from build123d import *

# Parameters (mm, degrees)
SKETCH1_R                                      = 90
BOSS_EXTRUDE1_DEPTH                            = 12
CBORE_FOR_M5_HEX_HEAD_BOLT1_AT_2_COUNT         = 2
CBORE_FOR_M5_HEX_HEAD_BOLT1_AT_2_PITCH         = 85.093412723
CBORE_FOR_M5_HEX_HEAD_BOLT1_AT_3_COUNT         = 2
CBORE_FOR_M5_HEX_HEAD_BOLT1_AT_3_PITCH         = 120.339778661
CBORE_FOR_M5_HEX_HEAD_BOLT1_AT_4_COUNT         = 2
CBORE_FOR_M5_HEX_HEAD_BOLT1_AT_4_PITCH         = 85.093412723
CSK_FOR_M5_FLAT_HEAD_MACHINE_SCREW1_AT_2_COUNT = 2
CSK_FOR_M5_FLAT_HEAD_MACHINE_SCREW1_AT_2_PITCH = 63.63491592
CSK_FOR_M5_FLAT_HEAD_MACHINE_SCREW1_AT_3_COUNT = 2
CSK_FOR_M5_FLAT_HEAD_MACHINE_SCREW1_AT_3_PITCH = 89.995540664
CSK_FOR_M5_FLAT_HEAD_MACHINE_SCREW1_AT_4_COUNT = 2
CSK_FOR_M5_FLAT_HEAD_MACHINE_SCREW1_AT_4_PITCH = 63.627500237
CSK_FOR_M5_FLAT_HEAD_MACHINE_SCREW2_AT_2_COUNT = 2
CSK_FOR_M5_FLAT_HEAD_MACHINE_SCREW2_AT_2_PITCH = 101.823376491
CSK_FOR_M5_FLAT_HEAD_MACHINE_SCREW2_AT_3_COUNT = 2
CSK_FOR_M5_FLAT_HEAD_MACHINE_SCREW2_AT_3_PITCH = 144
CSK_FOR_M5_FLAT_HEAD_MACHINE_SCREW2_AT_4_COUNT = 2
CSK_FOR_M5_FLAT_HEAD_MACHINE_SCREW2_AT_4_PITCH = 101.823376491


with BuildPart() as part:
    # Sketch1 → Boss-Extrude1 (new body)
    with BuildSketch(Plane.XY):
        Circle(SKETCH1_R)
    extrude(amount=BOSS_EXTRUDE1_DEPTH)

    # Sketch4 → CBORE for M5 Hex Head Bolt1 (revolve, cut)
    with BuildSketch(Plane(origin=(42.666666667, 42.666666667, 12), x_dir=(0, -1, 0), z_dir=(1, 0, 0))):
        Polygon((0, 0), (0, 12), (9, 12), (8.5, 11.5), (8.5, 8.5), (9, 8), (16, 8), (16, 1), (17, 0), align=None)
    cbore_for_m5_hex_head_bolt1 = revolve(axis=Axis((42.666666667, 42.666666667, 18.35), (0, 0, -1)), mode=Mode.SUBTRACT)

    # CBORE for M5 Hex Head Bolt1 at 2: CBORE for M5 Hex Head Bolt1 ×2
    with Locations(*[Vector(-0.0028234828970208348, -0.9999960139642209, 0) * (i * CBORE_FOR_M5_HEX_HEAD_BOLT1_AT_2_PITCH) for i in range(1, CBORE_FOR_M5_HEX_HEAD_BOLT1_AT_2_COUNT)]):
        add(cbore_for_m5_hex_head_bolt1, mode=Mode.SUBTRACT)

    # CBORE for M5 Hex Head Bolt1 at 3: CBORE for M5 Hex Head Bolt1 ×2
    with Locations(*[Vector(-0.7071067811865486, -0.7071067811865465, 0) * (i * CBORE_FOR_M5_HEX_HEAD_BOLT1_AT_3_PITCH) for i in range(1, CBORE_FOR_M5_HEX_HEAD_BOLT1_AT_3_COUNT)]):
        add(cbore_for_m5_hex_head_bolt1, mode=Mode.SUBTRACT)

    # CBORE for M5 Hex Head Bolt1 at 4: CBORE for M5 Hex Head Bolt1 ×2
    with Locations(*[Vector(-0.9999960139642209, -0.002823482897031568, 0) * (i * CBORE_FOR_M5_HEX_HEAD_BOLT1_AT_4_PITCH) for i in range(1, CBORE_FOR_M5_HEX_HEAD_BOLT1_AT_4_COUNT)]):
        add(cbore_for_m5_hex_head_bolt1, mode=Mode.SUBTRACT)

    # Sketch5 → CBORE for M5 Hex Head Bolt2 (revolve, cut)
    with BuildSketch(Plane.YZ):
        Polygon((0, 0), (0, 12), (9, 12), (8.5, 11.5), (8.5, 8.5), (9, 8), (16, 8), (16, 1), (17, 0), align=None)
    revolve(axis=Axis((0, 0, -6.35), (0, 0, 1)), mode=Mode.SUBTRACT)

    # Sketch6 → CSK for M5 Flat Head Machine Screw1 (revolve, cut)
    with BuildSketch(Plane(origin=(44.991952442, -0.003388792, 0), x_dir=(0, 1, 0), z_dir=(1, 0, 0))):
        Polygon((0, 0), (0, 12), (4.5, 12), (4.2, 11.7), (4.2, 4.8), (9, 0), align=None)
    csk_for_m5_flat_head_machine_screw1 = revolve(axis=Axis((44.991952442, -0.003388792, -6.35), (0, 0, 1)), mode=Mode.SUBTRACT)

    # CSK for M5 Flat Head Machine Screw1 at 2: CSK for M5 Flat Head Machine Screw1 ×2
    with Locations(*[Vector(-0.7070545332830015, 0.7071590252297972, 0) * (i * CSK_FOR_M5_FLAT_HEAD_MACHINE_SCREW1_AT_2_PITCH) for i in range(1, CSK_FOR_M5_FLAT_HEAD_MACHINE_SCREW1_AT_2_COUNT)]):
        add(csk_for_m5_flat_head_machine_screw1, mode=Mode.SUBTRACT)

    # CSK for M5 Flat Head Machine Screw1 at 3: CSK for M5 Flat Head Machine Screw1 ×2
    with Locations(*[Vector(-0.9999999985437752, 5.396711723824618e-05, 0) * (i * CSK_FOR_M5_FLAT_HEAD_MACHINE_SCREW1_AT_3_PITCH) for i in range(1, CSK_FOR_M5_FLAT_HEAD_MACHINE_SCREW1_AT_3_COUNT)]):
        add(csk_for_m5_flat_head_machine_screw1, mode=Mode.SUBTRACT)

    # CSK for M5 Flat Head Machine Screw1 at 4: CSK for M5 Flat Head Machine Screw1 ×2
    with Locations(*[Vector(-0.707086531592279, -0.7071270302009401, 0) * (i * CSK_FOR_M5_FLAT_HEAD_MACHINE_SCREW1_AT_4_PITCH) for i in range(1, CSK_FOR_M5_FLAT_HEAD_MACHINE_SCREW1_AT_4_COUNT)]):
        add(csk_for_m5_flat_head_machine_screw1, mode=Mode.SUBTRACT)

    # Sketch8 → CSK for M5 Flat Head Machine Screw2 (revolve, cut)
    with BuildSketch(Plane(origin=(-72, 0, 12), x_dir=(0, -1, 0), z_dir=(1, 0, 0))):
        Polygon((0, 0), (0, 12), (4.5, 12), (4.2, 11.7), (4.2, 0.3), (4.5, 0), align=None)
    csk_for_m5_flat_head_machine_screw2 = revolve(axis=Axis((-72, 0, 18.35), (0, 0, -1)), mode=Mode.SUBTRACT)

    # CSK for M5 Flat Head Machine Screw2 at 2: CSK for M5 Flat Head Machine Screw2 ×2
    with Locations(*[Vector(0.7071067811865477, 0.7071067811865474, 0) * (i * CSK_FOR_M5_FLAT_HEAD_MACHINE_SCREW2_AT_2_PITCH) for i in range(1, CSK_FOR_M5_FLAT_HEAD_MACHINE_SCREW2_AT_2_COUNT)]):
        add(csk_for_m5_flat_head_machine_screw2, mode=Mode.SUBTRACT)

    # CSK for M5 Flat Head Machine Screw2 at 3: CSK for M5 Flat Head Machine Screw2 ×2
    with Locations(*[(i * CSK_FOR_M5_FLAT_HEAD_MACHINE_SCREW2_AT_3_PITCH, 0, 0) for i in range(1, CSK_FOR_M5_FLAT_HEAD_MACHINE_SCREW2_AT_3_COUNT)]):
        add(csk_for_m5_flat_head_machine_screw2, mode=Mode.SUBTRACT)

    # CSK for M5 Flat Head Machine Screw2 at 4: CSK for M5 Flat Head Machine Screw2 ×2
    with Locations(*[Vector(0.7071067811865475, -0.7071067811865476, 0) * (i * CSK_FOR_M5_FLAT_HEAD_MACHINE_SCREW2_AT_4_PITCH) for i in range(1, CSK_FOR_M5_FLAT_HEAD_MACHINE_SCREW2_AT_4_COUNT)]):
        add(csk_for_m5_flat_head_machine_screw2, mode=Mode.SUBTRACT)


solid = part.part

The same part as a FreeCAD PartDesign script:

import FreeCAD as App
import Part
import Sketcher

V = App.Vector
Q = App.Units.Quantity

doc = App.newDocument("Part")
params = doc.addObject("Spreadsheet::Sheet", "Params")
for row, (alias, value) in enumerate([
    ("sketch1_diameter", "180 mm"),
    ("pad1_length", "12 mm"),
    ("sketch2_width", "17 mm"),
    ("sketch2_width2", "7 mm"),
    ("sketch2_width3", "9 mm"),
    ("sketch2_height", "12 mm"),
    ("sketch2_height2", "3 mm"),
    ("groove_angle", "360 deg"),
    ("linearpattern_pitch", "85.093413 mm"),
    ("linearpattern2_pitch", "120.339779 mm"),
    ("linearpattern3_pitch", "85.093413 mm"),
    ("sketch3_width", "17 mm"),
    ("sketch3_width2", "7 mm"),
    ("sketch3_width3", "9 mm"),
    ("sketch3_height", "12 mm"),
    ("sketch3_height2", "3 mm"),
    ("groove2_angle", "360 deg"),
    ("sketch4_width", "9 mm"),
    ("sketch4_height", "12 mm"),
    ("sketch4_width2", "4.5 mm"),
    ("sketch4_height2", "6.9 mm"),
    ("groove3_angle", "360 deg"),
    ("linearpattern4_pitch", "63.634916 mm"),
    ("linearpattern5_pitch", "89.995541 mm"),
    ("linearpattern6_pitch", "63.6275 mm"),
    ("sketch5_height", "12 mm"),
    ("sketch5_width", "4.5 mm"),
    ("sketch5_height2", "11.4 mm"),
    ("groove4_angle", "360 deg"),
    ("linearpattern7_pitch", "101.823376 mm"),
    ("linearpattern8_pitch", "144 mm"),
    ("linearpattern9_pitch", "101.823376 mm"),
], start=1):
    params.set(f"A{row}", alias)
    params.set(f"B{row}", "=" + value)
    params.setAlias(f"B{row}", alias)

body = doc.addObject("PartDesign::Body", "Body")

# Sketch on XY plane
sketch1 = body.newObject("Sketcher::SketchObject", "Sketch")
sketch1.AttachmentSupport = (doc.getObject("XY_Plane"), [""])
sketch1.MapMode = "FlatFace"
sketch1.addGeometry(Part.Circle(V(0, 0, 0), V(0, 0, 1), 90), False)
sketch1.addConstraint([
    Sketcher.Constraint("Coincident", 0, 3, -1, 1),
    Sketcher.Constraint("Diameter", 0, 180.0),
])
sketch1.setExpression("Constraints[1]", "Params.sketch1_diameter")
pad1 = body.newObject("PartDesign::Pad", "Pad")
pad1.Profile = sketch1
pad1.setExpression("Length", "Params.pad1_length")

# Sketch on YZ plane
sketch2 = body.newObject("Sketcher::SketchObject", "Sketch001")
sketch2.AttachmentSupport = (doc.getObject("YZ_Plane"), [""])
sketch2.MapMode = "FlatFace"
sketch2.AttachmentOffset = App.Placement(V(0, 0, 42.666667), App.Rotation())
sketch2.addGeometry([
    Part.LineSegment(V(42.7, 0, 0), V(42.7, 12, 0)),  # 0
    Part.LineSegment(V(42.7, 12, 0), V(25.7, 12, 0)),  # 1
    Part.LineSegment(V(25.7, 12, 0), V(26.7, 11, 0)),  # 2
    Part.LineSegment(V(26.7, 11, 0), V(26.7, 4, 0)),  # 3
    Part.LineSegment(V(26.7, 4, 0), V(33.7, 4, 0)),  # 4
    Part.LineSegment(V(33.7, 4, 0), V(34.2, 3.5, 0)),  # 5
    Part.LineSegment(V(34.2, 3.5, 0), V(34.2, 0.5, 0)),  # 6
    Part.LineSegment(V(34.2, 0.5, 0), V(33.7, 0, 0)),  # 7
    Part.LineSegment(V(33.7, 0, 0), V(42.7, 0, 0)),  # 8
], False)
sketch2.addGeometry(Part.LineSegment(V(42.7, 12, 0), V(42.7, 0, 0)), True)  # axis
sketch2.addConstraint([
    Sketcher.Constraint("Coincident", 0, 2, 1, 1),
    Sketcher.Constraint("Coincident", 1, 2, 2, 1),
    Sketcher.Constraint("Coincident", 2, 2, 3, 1),
    Sketcher.Constraint("Coincident", 3, 2, 4, 1),
    Sketcher.Constraint("Coincident", 4, 2, 5, 1),
    Sketcher.Constraint("Coincident", 5, 2, 6, 1),
    Sketcher.Constraint("Coincident", 6, 2, 7, 1),
    Sketcher.Constraint("Coincident", 7, 2, 8, 1),
    Sketcher.Constraint("Coincident", 8, 2, 0, 1),
    Sketcher.Constraint("Vertical", 0),
    Sketcher.Constraint("Horizontal", 1),
    Sketcher.Constraint("Vertical", 3),
    Sketcher.Constraint("Horizontal", 4),
    Sketcher.Constraint("Vertical", 6),
    Sketcher.Constraint("Horizontal", 8),
    Sketcher.Constraint("Vertical", 9),
    Sketcher.Constraint("Coincident", 9, 1, 0, 2),
    Sketcher.Constraint("PointOnObject", 7, 2, -1),
    Sketcher.Constraint("PointOnObject", 9, 2, -1),
    Sketcher.Constraint("Parallel", 2, 5),
    Sketcher.Constraint("Perpendicular", 5, 7),
    Sketcher.Constraint("Vertical", 4, 2, 7, 2),
    Sketcher.Constraint("Equal", 4, 3),
    Sketcher.Constraint("Equal", 5, 7),
    Sketcher.Constraint("DistanceX", 1, 2, 1, 1, 17.0),
    Sketcher.Constraint("DistanceX", 4, 1, 4, 2, 7.0),
    Sketcher.Constraint("DistanceX", 8, 1, 8, 2, 9.0),
    Sketcher.Constraint("DistanceY", 0, 1, 0, 2, 12.0),
    Sketcher.Constraint("DistanceY", 6, 2, 6, 1, 3.0),
    Sketcher.Constraint("DistanceX", -1, 1, 0, 2, 42.666667),
])
sketch2.setExpression("Constraints[24]", "Params.sketch2_width")
sketch2.setExpression("Constraints[25]", "Params.sketch2_width2")
sketch2.setExpression("Constraints[26]", "Params.sketch2_width3")
sketch2.setExpression("Constraints[27]", "Params.sketch2_height")
sketch2.setExpression("Constraints[28]", "Params.sketch2_height2")
groove = body.newObject("PartDesign::Groove", "Groove")
groove.Profile = sketch2
groove.ReferenceAxis = (sketch2, ["Axis0"])
groove.setExpression("Angle", "Params.groove_angle")
doc.recompute()

datumline = body.newObject("PartDesign::Line", "DatumLine")
datumline.Placement = App.Placement(V(0, 0, 0), App.Rotation(V(0, 0, 1), V(-0.002823483, -0.999996014, 0)))
linearpattern = body.newObject("PartDesign::LinearPattern", "LinearPattern")
linearpattern.Originals = [groove]
linearpattern.Direction = (datumline, [""])
linearpattern.Mode = "offset"
linearpattern.setExpression("Offset", "Params.linearpattern_pitch")
linearpattern.Occurrences = 2
body.Tip = linearpattern
doc.recompute()

datumline2 = body.newObject("PartDesign::Line", "DatumLine001")
datumline2.Placement = App.Placement(V(0, 0, 0), App.Rotation(V(0, 0, 1), V(-0.707106781, -0.707106781, 0)))
linearpattern2 = body.newObject("PartDesign::LinearPattern", "LinearPattern001")
linearpattern2.Originals = [groove]
linearpattern2.Direction = (datumline2, [""])
linearpattern2.Mode = "offset"
linearpattern2.setExpression("Offset", "Params.linearpattern2_pitch")
linearpattern2.Occurrences = 2
body.Tip = linearpattern2
doc.recompute()

datumline3 = body.newObject("PartDesign::Line", "DatumLine002")
datumline3.Placement = App.Placement(V(0, 0, 0), App.Rotation(V(0, 0, 1), V(-0.999996014, -0.002823483, 0)))
linearpattern3 = body.newObject("PartDesign::LinearPattern", "LinearPattern002")
linearpattern3.Originals = [groove]
linearpattern3.Direction = (datumline3, [""])
linearpattern3.Mode = "offset"
linearpattern3.setExpression("Offset", "Params.linearpattern3_pitch")
linearpattern3.Occurrences = 2
body.Tip = linearpattern3

# Sketch on YZ plane
sketch3 = body.newObject("Sketcher::SketchObject", "Sketch002")
sketch3.AttachmentSupport = (doc.getObject("YZ_Plane"), [""])
sketch3.MapMode = "FlatFace"
sketch3.addGeometry([
    Part.LineSegment(V(0, 12, 0), V(0, 0, 0)),  # 0
    Part.LineSegment(V(0, 0, 0), V(17, 0, 0)),  # 1
    Part.LineSegment(V(17, 0, 0), V(16, 1, 0)),  # 2
    Part.LineSegment(V(16, 1, 0), V(16, 8, 0)),  # 3
    Part.LineSegment(V(16, 8, 0), V(9, 8, 0)),  # 4
    Part.LineSegment(V(9, 8, 0), V(8.5, 8.5, 0)),  # 5
    Part.LineSegment(V(8.5, 8.5, 0), V(8.5, 11.5, 0)),  # 6
    Part.LineSegment(V(8.5, 11.5, 0), V(9, 12, 0)),  # 7
    Part.LineSegment(V(9, 12, 0), V(0, 12, 0)),  # 8
], False)
sketch3.addConstraint([
    Sketcher.Constraint("Coincident", 0, 2, 1, 1),
    Sketcher.Constraint("Coincident", 1, 2, 2, 1),
    Sketcher.Constraint("Coincident", 2, 2, 3, 1),
    Sketcher.Constraint("Coincident", 3, 2, 4, 1),
    Sketcher.Constraint("Coincident", 4, 2, 5, 1),
    Sketcher.Constraint("Coincident", 5, 2, 6, 1),
    Sketcher.Constraint("Coincident", 6, 2, 7, 1),
    Sketcher.Constraint("Coincident", 7, 2, 8, 1),
    Sketcher.Constraint("Coincident", 8, 2, 0, 1),
    Sketcher.Constraint("Vertical", 0),
    Sketcher.Constraint("Horizontal", 1),
    Sketcher.Constraint("Vertical", 3),
    Sketcher.Constraint("Horizontal", 4),
    Sketcher.Constraint("Vertical", 6),
    Sketcher.Constraint("Horizontal", 8),
    Sketcher.Constraint("Coincident", 0, 2, -1, 1),
    Sketcher.Constraint("Parallel", 2, 5),
    Sketcher.Constraint("Perpendicular", 5, 7),
    Sketcher.Constraint("Vertical", 4, 2, 7, 2),
    Sketcher.Constraint("Equal", 4, 3),
    Sketcher.Constraint("Equal", 5, 7),
    Sketcher.Constraint("DistanceX", 1, 1, 1, 2, 17.0),
    Sketcher.Constraint("DistanceX", 4, 2, 4, 1, 7.0),
    Sketcher.Constraint("DistanceX", 8, 2, 8, 1, 9.0),
    Sketcher.Constraint("DistanceY", 0, 2, 0, 1, 12.0),
    Sketcher.Constraint("DistanceY", 6, 1, 6, 2, 3.0),
])
sketch3.setExpression("Constraints[21]", "Params.sketch3_width")
sketch3.setExpression("Constraints[22]", "Params.sketch3_width2")
sketch3.setExpression("Constraints[23]", "Params.sketch3_width3")
sketch3.setExpression("Constraints[24]", "Params.sketch3_height")
sketch3.setExpression("Constraints[25]", "Params.sketch3_height2")
groove2 = body.newObject("PartDesign::Groove", "Groove001")
groove2.Profile = sketch3
groove2.ReferenceAxis = (sketch3, ["V_Axis"])
groove2.setExpression("Angle", "Params.groove2_angle")

# Sketch on YZ plane
sketch4 = body.newObject("Sketcher::SketchObject", "Sketch003")
sketch4.AttachmentSupport = (doc.getObject("YZ_Plane"), [""])
sketch4.MapMode = "FlatFace"
sketch4.AttachmentOffset = App.Placement(V(0, 0, 44.991952), App.Rotation())
sketch4.addGeometry([
    Part.LineSegment(V(0, 12, 0), V(0, 0, 0)),  # 0
    Part.LineSegment(V(0, 0, 0), V(9, 0, 0)),  # 1
    Part.LineSegment(V(9, 0, 0), V(4.2, 4.8, 0)),  # 2
    Part.LineSegment(V(4.2, 4.8, 0), V(4.2, 11.7, 0)),  # 3
    Part.LineSegment(V(4.2, 11.7, 0), V(4.5, 12, 0)),  # 4
    Part.LineSegment(V(4.5, 12, 0), V(0, 12, 0)),  # 5
], False)
sketch4.addGeometry(Part.LineSegment(V(0, 0, 0), V(0, 12, 0)), True)  # axis
sketch4.addConstraint([
    Sketcher.Constraint("Coincident", 0, 2, 1, 1),
    Sketcher.Constraint("Coincident", 1, 2, 2, 1),
    Sketcher.Constraint("Coincident", 2, 2, 3, 1),
    Sketcher.Constraint("Coincident", 3, 2, 4, 1),
    Sketcher.Constraint("Coincident", 4, 2, 5, 1),
    Sketcher.Constraint("Coincident", 5, 2, 0, 1),
    Sketcher.Constraint("Vertical", 0),
    Sketcher.Constraint("Horizontal", 1),
    Sketcher.Constraint("Vertical", 3),
    Sketcher.Constraint("Horizontal", 5),
    Sketcher.Constraint("Vertical", 6),
    Sketcher.Constraint("Coincident", 6, 1, 0, 2),
    Sketcher.Constraint("PointOnObject", 0, 2, -1),
    Sketcher.Constraint("Perpendicular", 2, 4),
    Sketcher.Constraint("Horizontal", 4, 2, 6, 2),
    Sketcher.Constraint("DistanceX", 1, 1, 1, 2, 9.0),
    Sketcher.Constraint("DistanceY", 0, 2, 0, 1, 12.0),
    Sketcher.Constraint("Angle", 2, Q("135 deg")),
    Sketcher.Constraint("DistanceX", 5, 2, 5, 1, 4.5),
    Sketcher.Constraint("DistanceY", 3, 1, 3, 2, 6.9),
    Sketcher.Constraint("DistanceX", 0, 2, -1, 1, 0.003389),
])
sketch4.setExpression("Constraints[15]", "Params.sketch4_width")
sketch4.setExpression("Constraints[16]", "Params.sketch4_height")
sketch4.setExpression("Constraints[18]", "Params.sketch4_width2")
sketch4.setExpression("Constraints[19]", "Params.sketch4_height2")
groove3 = body.newObject("PartDesign::Groove", "Groove002")
groove3.Profile = sketch4
groove3.ReferenceAxis = (sketch4, ["Axis0"])
groove3.setExpression("Angle", "Params.groove3_angle")
doc.recompute()

datumline4 = body.newObject("PartDesign::Line", "DatumLine003")
datumline4.Placement = App.Placement(V(0, 0, 0), App.Rotation(V(0, 0, 1), V(-0.707054533, 0.707159025, 0)))
linearpattern4 = body.newObject("PartDesign::LinearPattern", "LinearPattern003")
linearpattern4.Originals = [groove3]
linearpattern4.Direction = (datumline4, [""])
linearpattern4.Mode = "offset"
linearpattern4.setExpression("Offset", "Params.linearpattern4_pitch")
linearpattern4.Occurrences = 2
body.Tip = linearpattern4
doc.recompute()

linearpattern5 = body.newObject("PartDesign::LinearPattern", "LinearPattern004")
linearpattern5.Originals = [groove3]
linearpattern5.Direction = (doc.getObject("X_Axis"), [""])
linearpattern5.Mode = "offset"
linearpattern5.setExpression("Offset", "Params.linearpattern5_pitch")
linearpattern5.Occurrences = 2
linearpattern5.Reversed = True
body.Tip = linearpattern5
doc.recompute()

datumline5 = body.newObject("PartDesign::Line", "DatumLine004")
datumline5.Placement = App.Placement(V(0, 0, 0), App.Rotation(V(0, 0, 1), V(-0.707086532, -0.70712703, 0)))
linearpattern6 = body.newObject("PartDesign::LinearPattern", "LinearPattern005")
linearpattern6.Originals = [groove3]
linearpattern6.Direction = (datumline5, [""])
linearpattern6.Mode = "offset"
linearpattern6.setExpression("Offset", "Params.linearpattern6_pitch")
linearpattern6.Occurrences = 2
body.Tip = linearpattern6

# Sketch on YZ plane
sketch5 = body.newObject("Sketcher::SketchObject", "Sketch004")
sketch5.AttachmentSupport = (doc.getObject("YZ_Plane"), [""])
sketch5.MapMode = "FlatFace"
sketch5.AttachmentOffset = App.Placement(V(0, 0, -72), App.Rotation())
sketch5.addGeometry([
    Part.LineSegment(V(0, 0, 0), V(0, 12, 0)),  # 0
    Part.LineSegment(V(0, 12, 0), V(-4.5, 12, 0)),  # 1
    Part.LineSegment(V(-4.5, 12, 0), V(-4.2, 11.7, 0)),  # 2
    Part.LineSegment(V(-4.2, 11.7, 0), V(-4.2, 0.3, 0)),  # 3
    Part.LineSegment(V(-4.2, 0.3, 0), V(-4.5, 0, 0)),  # 4
    Part.LineSegment(V(-4.5, 0, 0), V(0, 0, 0)),  # 5
], False)
sketch5.addConstraint([
    Sketcher.Constraint("Coincident", 0, 2, 1, 1),
    Sketcher.Constraint("Coincident", 1, 2, 2, 1),
    Sketcher.Constraint("Coincident", 2, 2, 3, 1),
    Sketcher.Constraint("Coincident", 3, 2, 4, 1),
    Sketcher.Constraint("Coincident", 4, 2, 5, 1),
    Sketcher.Constraint("Coincident", 5, 2, 0, 1),
    Sketcher.Constraint("Vertical", 0),
    Sketcher.Constraint("Horizontal", 1),
    Sketcher.Constraint("Vertical", 3),
    Sketcher.Constraint("Horizontal", 5),
    Sketcher.Constraint("Coincident", 5, 2, -1, 1),
    Sketcher.Constraint("Perpendicular", 2, 4),
    Sketcher.Constraint("Vertical", 1, 2, 4, 2),
    Sketcher.Constraint("Equal", 2, 4),
    Sketcher.Constraint("DistanceY", 0, 1, 0, 2, 12.0),
    Sketcher.Constraint("DistanceX", 1, 2, 1, 1, 4.5),
    Sketcher.Constraint("DistanceY", 3, 2, 3, 1, 11.4),
])
sketch5.setExpression("Constraints[14]", "Params.sketch5_height")
sketch5.setExpression("Constraints[15]", "Params.sketch5_width")
sketch5.setExpression("Constraints[16]", "Params.sketch5_height2")
groove4 = body.newObject("PartDesign::Groove", "Groove003")
groove4.Profile = sketch5
groove4.ReferenceAxis = (sketch5, ["V_Axis"])
groove4.setExpression("Angle", "Params.groove4_angle")
doc.recompute()

datumline6 = body.newObject("PartDesign::Line", "DatumLine005")
datumline6.Placement = App.Placement(V(0, 0, 0), App.Rotation(V(0, 0, 1), V(0.707106781, 0.707106781, 0)))
linearpattern7 = body.newObject("PartDesign::LinearPattern", "LinearPattern006")
linearpattern7.Originals = [groove4]
linearpattern7.Direction = (datumline6, [""])
linearpattern7.Mode = "offset"
linearpattern7.setExpression("Offset", "Params.linearpattern7_pitch")
linearpattern7.Occurrences = 2
body.Tip = linearpattern7
doc.recompute()

linearpattern8 = body.newObject("PartDesign::LinearPattern", "LinearPattern007")
linearpattern8.Originals = [groove4]
linearpattern8.Direction = (doc.getObject("X_Axis"), [""])
linearpattern8.Mode = "offset"
linearpattern8.setExpression("Offset", "Params.linearpattern8_pitch")
linearpattern8.Occurrences = 2
body.Tip = linearpattern8
doc.recompute()

datumline7 = body.newObject("PartDesign::Line", "DatumLine006")
datumline7.Placement = App.Placement(V(0, 0, 0), App.Rotation(V(0, 0, 1), V(0.707106781, -0.707106781, 0)))
linearpattern9 = body.newObject("PartDesign::LinearPattern", "LinearPattern008")
linearpattern9.Originals = [groove4]
linearpattern9.Direction = (datumline7, [""])
linearpattern9.Mode = "offset"
linearpattern9.setExpression("Offset", "Params.linearpattern9_pitch")
linearpattern9.Occurrences = 2
body.Tip = linearpattern9

doc.recompute()
